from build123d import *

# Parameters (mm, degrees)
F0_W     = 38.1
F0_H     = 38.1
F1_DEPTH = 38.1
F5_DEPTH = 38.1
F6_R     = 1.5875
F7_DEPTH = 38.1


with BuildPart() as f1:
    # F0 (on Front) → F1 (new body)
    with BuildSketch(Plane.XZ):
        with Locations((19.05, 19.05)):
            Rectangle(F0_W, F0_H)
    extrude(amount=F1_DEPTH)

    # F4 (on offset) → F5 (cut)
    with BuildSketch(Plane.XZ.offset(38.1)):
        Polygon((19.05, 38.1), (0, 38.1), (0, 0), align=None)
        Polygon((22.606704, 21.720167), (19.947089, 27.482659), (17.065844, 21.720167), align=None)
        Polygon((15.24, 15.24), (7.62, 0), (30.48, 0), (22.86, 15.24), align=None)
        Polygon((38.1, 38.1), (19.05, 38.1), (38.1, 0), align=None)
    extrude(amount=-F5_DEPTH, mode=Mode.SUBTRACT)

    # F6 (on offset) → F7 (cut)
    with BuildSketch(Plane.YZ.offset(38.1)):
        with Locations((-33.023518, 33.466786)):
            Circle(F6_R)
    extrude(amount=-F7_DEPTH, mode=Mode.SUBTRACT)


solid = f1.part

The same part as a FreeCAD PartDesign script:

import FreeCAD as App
import Part
import Sketcher

V = App.Vector
Q = App.Units.Quantity


def add_polygon(sketch, points):
    """Adds a closed chain of lines whose ends are joined by coincident constraints."""
    first, n = sketch.GeometryCount, len(points)
    for a, b in zip(points, points[1:] + points[:1]):
        sketch.addGeometry(Part.LineSegment(App.Vector(*a, 0), App.Vector(*b, 0)), False)
    for i in range(n):
        sketch.addConstraint(Sketcher.Constraint("Coincident", first + i, 2, first + (i + 1) % n, 1))

doc = App.newDocument("Part")
body = doc.addObject("PartDesign::Body", "Body")

# Sketch on XZ plane
sketch1 = body.newObject("Sketcher::SketchObject", "Sketch")
sketch1.AttachmentSupport = (doc.getObject("XZ_Plane"), [""])
sketch1.MapMode = "FlatFace"
add_polygon(sketch1, [(0, 38), (0, 0), (38, 0), (38, 38)])  # lines 0-3
sketch1.addConstraint(Sketcher.Constraint("Vertical", 0))
sketch1.addConstraint(Sketcher.Constraint("Horizontal", 1))
sketch1.addConstraint(Sketcher.Constraint("Vertical", 2))
sketch1.addConstraint(Sketcher.Constraint("Horizontal", 3))
sketch1.addConstraint(Sketcher.Constraint("Coincident", 0, 2, -1, 1))
sketch1.addConstraint(Sketcher.Constraint("Equal", 3, 0))
sketch1.addConstraint(Sketcher.Constraint("DistanceX", 1, 1, 1, 2, Q("1.5 in")))
pad1 = body.newObject("PartDesign::Pad", "Pad")
pad1.Profile = sketch1
pad1.Length = Q("1.5 in")

# Sketch on XZ plane
sketch2 = body.newObject("Sketcher::SketchObject", "Sketch001")
sketch2.AttachmentSupport = (doc.getObject("XZ_Plane"), [""])
sketch2.MapMode = "FlatFace"
sketch2.AttachmentOffset = App.Placement(V(0, 0, 1.5 * 25.4), App.Rotation())
add_polygon(sketch2, [(19, 38), (0, 38), (0, 0)])  # lines 0-2
add_polygon(sketch2, [(23, 22), (20, 27), (17, 22)])  # lines 3-5
add_polygon(sketch2, [(15, 15), (8, 0), (30, 0), (23, 15)])  # lines 6-9
add_polygon(sketch2, [(38, 38), (19, 38), (38, 0)])  # lines 10-12
sketch2.addConstraint(Sketcher.Constraint("Horizontal", 0))
sketch2.addConstraint(Sketcher.Constraint("Vertical", 1))
sketch2.addConstraint(Sketcher.Constraint("Horizontal", 5))
sketch2.addConstraint(Sketcher.Constraint("Horizontal", 7))
sketch2.addConstraint(Sketcher.Constraint("Horizontal", 9))
sketch2.addConstraint(Sketcher.Constraint("Horizontal", 10))
sketch2.addConstraint(Sketcher.Constraint("Vertical", 12))
sketch2.addConstraint(Sketcher.Constraint("Coincident", 1, 2, -1, 1))
sketch2.addConstraint(Sketcher.Constraint("Coincident", 10, 2, 2, 2))
sketch2.addConstraint(Sketcher.Constraint("PointOnObject", 6, 2, -1))
sketch2.addConstraint(Sketcher.Constraint("PointOnObject", 11, 2, -1))
sketch2.addConstraint(Sketcher.Constraint("Parallel", 2, 4))
sketch2.addConstraint(Sketcher.Constraint("Parallel", 4, 6))
sketch2.addConstraint(Sketcher.Constraint("Parallel", 8, 11))
sketch2.addConstraint(Sketcher.Constraint("Equal", 0, 10))
sketch2.addConstraint(Sketcher.Constraint("DistanceX", 7, 1, 7, 2, Q("0.9 in")))
sketch2.addConstraint(Sketcher.Constraint("DistanceX", 9, 2, 9, 1, Q("0.3 in")))
sketch2.addConstraint(Sketcher.Constraint("DistanceY", 1, 2, 1, 1, Q("1.5 in")))
sketch2.addConstraint(Sketcher.Constraint("DistanceX", 0, 2, 0, 1, Q("0.75 in")))
sketch2.addConstraint(Sketcher.Constraint("DistanceX", -1, 1, 6, 2, Q("0.3 in")))
sketch2.addConstraint(Sketcher.Constraint("DistanceX", 5, 1, 5, 2, 5.54086))
sketch2.addConstraint(Sketcher.Constraint("Distance", 4, 6.442661))
sketch2.addConstraint(Sketcher.Constraint("DistanceX", -1, 1, 3, 2, 19.947089))
sketch2.addConstraint(Sketcher.Constraint("DistanceY", -1, 1, 3, 2, 27.482659))
pocket1 = body.newObject("PartDesign::Pocket", "Pocket")
pocket1.Profile = sketch2
pocket1.Length = Q("1.5 in")

# Sketch on YZ plane
sketch3 = body.newObject("Sketcher::SketchObject", "Sketch002")
sketch3.AttachmentSupport = (doc.getObject("YZ_Plane"), [""])
sketch3.MapMode = "FlatFace"
sketch3.AttachmentOffset = App.Placement(V(0, 0, 1.5 * 25.4), App.Rotation())
sketch3.addGeometry(Part.Circle(V(-33, 33.5, 0), V(0, 0, 1), 1.6), False)
sketch3.addConstraint(Sketcher.Constraint("Diameter", 0, Q("0.125 in")))
sketch3.addConstraint(Sketcher.Constraint("DistanceX", 0, 3, -1, 1, 33.023518))
sketch3.addConstraint(Sketcher.Constraint("DistanceY", -1, 1, 0, 3, 33.466786))
pocket2 = body.newObject("PartDesign::Pocket", "Pocket001")
pocket2.Profile = sketch3
pocket2.Length = Q("1.5 in")

doc.recompute()
